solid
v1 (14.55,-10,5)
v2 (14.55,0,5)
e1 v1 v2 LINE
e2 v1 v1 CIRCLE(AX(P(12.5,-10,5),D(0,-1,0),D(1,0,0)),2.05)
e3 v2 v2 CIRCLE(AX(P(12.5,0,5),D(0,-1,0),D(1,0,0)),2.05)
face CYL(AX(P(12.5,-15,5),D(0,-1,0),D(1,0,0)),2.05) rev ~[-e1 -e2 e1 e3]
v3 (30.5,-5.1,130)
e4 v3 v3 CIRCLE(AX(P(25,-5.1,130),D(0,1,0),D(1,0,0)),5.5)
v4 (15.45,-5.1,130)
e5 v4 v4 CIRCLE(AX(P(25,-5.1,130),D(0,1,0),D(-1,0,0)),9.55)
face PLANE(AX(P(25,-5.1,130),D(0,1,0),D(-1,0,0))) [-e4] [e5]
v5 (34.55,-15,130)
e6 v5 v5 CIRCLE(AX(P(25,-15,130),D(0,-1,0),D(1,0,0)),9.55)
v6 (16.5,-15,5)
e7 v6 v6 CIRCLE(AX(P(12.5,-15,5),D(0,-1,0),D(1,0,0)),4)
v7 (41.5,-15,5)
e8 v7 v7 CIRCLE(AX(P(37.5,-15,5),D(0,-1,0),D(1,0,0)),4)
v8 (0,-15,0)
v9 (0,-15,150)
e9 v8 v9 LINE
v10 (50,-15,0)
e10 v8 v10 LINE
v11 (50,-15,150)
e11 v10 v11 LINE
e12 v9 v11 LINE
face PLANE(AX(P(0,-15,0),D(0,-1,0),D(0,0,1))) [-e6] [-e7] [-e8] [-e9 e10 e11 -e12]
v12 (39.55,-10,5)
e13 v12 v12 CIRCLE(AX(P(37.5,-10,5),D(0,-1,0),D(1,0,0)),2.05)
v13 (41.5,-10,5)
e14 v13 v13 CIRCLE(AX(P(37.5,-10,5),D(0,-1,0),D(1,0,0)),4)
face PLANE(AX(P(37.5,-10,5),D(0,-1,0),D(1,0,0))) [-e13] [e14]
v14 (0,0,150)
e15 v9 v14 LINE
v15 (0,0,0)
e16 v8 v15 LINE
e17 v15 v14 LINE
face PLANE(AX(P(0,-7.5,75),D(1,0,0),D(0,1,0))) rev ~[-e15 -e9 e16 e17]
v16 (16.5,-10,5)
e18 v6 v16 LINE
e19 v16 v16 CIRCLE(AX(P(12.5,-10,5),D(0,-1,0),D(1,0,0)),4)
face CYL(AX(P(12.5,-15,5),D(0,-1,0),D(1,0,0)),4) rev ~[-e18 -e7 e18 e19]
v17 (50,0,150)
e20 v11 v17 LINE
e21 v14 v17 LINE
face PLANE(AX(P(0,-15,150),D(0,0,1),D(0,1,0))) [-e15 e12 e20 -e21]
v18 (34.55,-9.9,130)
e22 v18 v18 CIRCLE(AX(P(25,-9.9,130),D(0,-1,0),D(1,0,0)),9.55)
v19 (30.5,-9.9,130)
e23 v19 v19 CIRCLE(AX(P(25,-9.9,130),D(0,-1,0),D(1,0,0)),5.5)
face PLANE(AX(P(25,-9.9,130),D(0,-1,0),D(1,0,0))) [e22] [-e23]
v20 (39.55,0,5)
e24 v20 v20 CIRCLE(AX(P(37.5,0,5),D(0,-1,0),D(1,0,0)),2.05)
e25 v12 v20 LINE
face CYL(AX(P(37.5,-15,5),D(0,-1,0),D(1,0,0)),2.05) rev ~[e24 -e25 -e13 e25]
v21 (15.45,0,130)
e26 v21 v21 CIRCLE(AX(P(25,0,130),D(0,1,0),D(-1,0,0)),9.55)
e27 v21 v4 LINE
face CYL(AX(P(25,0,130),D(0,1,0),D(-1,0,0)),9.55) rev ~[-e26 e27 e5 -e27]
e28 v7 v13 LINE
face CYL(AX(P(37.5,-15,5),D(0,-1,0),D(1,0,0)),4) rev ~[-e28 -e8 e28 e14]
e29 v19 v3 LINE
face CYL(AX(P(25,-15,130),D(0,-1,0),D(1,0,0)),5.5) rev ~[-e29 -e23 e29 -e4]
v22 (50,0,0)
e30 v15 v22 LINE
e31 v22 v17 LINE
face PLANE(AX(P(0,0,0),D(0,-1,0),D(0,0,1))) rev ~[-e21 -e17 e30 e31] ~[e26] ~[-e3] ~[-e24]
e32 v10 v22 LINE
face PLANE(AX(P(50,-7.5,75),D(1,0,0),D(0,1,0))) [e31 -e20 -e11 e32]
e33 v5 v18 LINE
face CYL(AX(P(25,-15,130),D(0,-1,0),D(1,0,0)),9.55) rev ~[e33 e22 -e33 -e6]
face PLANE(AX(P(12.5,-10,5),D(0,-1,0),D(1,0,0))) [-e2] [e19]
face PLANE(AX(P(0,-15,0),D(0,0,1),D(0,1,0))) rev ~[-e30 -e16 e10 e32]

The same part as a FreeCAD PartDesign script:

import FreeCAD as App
import Part
import Sketcher

V = App.Vector
Q = App.Units.Quantity


def add_polygon(sketch, points):
    """Adds a closed chain of lines whose ends are joined by coincident constraints."""
    first, n = sketch.GeometryCount, len(points)
    for a, b in zip(points, points[1:] + points[:1]):
        sketch.addGeometry(Part.LineSegment(App.Vector(*a, 0), App.Vector(*b, 0)), False)
    for i in range(n):
        sketch.addConstraint(Sketcher.Constraint("Coincident", first + i, 2, first + (i + 1) % n, 1))

doc = App.newDocument("Part")
body = doc.addObject("PartDesign::Body", "Body")

# Sketch on YZ plane
sketch1 = body.newObject("Sketcher::SketchObject", "Sketch")
sketch1.AttachmentSupport = (doc.getObject("YZ_Plane"), [""])
sketch1.MapMode = "FlatFace"
add_polygon(sketch1, [(-15, 150), (-15, 0), (0, 0), (0, 150)])  # lines 0-3
sketch1.addConstraint([
    Sketcher.Constraint("Vertical", 0),
    Sketcher.Constraint("Horizontal", 1),
    Sketcher.Constraint("Vertical", 2),
    Sketcher.Constraint("Horizontal", 3),
    Sketcher.Constraint("Coincident", 1, 2, -1, 1),
    Sketcher.Constraint("DistanceX", 1, 1, 1, 2, Q("15 mm")),
    Sketcher.Constraint("DistanceY", 0, 2, 0, 1, Q("150 mm")),
])
pad1 = body.newObject("PartDesign::Pad", "Pad")
pad1.Profile = sketch1
pad1.Length = 50

# Sketch on XZ plane
sketch2 = body.newObject("Sketcher::SketchObject", "Sketch001")
sketch2.AttachmentSupport = (doc.getObject("XZ_Plane"), [""])
sketch2.MapMode = "FlatFace"
sketch2.AttachmentOffset = App.Placement(V(0, 0, 15), App.Rotation())
sketch2.addGeometry([
    Part.Circle(V(25, 130, 0), V(0, 0, 1), 5.5),
    Part.Circle(V(12.5, 5, 0), V(0, 0, 1), 2),
    Part.Circle(V(37.5, 5, 0), V(0, 0, 1), 2),
], False)
sketch2.addConstraint([
    Sketcher.Constraint("Equal", 1, 2),
    Sketcher.Constraint("Horizontal", 1, 3, 2, 3),
    Sketcher.Constraint("Diameter", 0, Q("11 mm")),
    Sketcher.Constraint("Diameter", 1, Q("4.1 mm")),
    Sketcher.Constraint("DistanceX", -1, 1, 0, 3, Q("25 mm")),
    Sketcher.Constraint("DistanceY", -1, 1, 0, 3, Q("130 mm")),
    Sketcher.Constraint("DistanceY", -1, 1, 1, 3, Q("5 mm")),
    Sketcher.Constraint("DistanceX", 1, 3, 2, 3, Q("25 mm")),
    Sketcher.Constraint("DistanceX", -1, 1, 1, 3, Q("12.5 mm")),
])
pocket1 = body.newObject("PartDesign::Pocket", "Pocket")
pocket1.Profile = sketch2
pocket1.Type = "ThroughAll"

# Sketch on XZ plane
sketch3 = body.newObject("Sketcher::SketchObject", "Sketch002")
sketch3.AttachmentSupport = (doc.getObject("XZ_Plane"), [""])
sketch3.MapMode = "FlatFace"
sketch3.AttachmentOffset = App.Placement(V(0, 0, 15), App.Rotation())
sketch3.addGeometry([
    Part.Circle(V(12.5, 5, 0), V(0, 0, 1), 4),
    Part.Circle(V(12.5, 5, 0), V(0, 0, 1), 2),
    Part.Circle(V(37.5, 5, 0), V(0, 0, 1), 4),
    Part.Circle(V(37.5, 5, 0), V(0, 0, 1), 2),
], False)
sketch3.addConstraint([
    Sketcher.Constraint("Coincident", 1, 3, 0, 3),
    Sketcher.Constraint("Coincident", 3, 3, 2, 3),
    Sketcher.Constraint("Equal", 0, 2),
    Sketcher.Constraint("Equal", 1, 3),
    Sketcher.Constraint("Horizontal", 1, 3, 2, 3),
    Sketcher.Constraint("Diameter", 0, Q("8 mm")),
    Sketcher.Constraint("Diameter", 1, Q("4.1 mm")),
    Sketcher.Constraint("DistanceY", -1, 1, 0, 3, Q("5 mm")),
    Sketcher.Constraint("DistanceX", 0, 3, 2, 3, Q("25 mm")),
    Sketcher.Constraint("DistanceX", -1, 1, 0, 3, Q("12.5 mm")),
])
pocket2 = body.newObject("PartDesign::Pocket", "Pocket001")
pocket2.Profile = sketch3
pocket2.Length = 5

# Sketch on XZ plane
sketch4 = body.newObject("Sketcher::SketchObject", "Sketch003")
sketch4.AttachmentSupport = (doc.getObject("XZ_Plane"), [""])
sketch4.MapMode = "FlatFace"
sketch4.AttachmentOffset = App.Placement(V(0, 0, 15), App.Rotation())
sketch4.addGeometry([
    Part.Circle(V(25, 130, 0), V(0, 0, 1), 10),
    Part.Circle(V(25, 130, 0), V(0, 0, 1), 6),
], False)
sketch4.addConstraint([
    Sketcher.Constraint("Coincident", 1, 3, 0, 3),
    Sketcher.Constraint("Diameter", 1, Q("11 mm")),
    Sketcher.Constraint("Diameter", 0, Q("19.1 mm")),
    Sketcher.Constraint("DistanceX", -1, 1, 0, 3, Q("25 mm")),
    Sketcher.Constraint("DistanceY", -1, 1, 0, 3, Q("130 mm")),
])
pocket3 = body.newObject("PartDesign::Pocket", "Pocket002")
pocket3.Profile = sketch4
pocket3.Length = 5.1

# Sketch on XZ plane
sketch5 = body.newObject("Sketcher::SketchObject", "Sketch004")
sketch5.AttachmentSupport = (doc.getObject("XZ_Plane"), [""])
sketch5.MapMode = "FlatFace"
sketch5.addGeometry([
    Part.Circle(V(25, 130, 0), V(0, 0, 1), 10),
    Part.Circle(V(25, 130, 0), V(0, 0, 1), 6),
], False)
sketch5.addConstraint([
    Sketcher.Constraint("Coincident", 1, 3, 0, 3),
    Sketcher.Constraint("Diameter", 1, Q("11 mm")),
    Sketcher.Constraint("Diameter", 0, Q("19.1 mm")),
    Sketcher.Constraint("DistanceX", -1, 1, 0, 3, Q("25 mm")),
    Sketcher.Constraint("DistanceY", -1, 1, 0, 3, Q("130 mm")),
])
pocket4 = body.newObject("PartDesign::Pocket", "Pocket003")
pocket4.Profile = sketch5
pocket4.Length = 5.1
pocket4.Reversed = True

doc.recompute()
